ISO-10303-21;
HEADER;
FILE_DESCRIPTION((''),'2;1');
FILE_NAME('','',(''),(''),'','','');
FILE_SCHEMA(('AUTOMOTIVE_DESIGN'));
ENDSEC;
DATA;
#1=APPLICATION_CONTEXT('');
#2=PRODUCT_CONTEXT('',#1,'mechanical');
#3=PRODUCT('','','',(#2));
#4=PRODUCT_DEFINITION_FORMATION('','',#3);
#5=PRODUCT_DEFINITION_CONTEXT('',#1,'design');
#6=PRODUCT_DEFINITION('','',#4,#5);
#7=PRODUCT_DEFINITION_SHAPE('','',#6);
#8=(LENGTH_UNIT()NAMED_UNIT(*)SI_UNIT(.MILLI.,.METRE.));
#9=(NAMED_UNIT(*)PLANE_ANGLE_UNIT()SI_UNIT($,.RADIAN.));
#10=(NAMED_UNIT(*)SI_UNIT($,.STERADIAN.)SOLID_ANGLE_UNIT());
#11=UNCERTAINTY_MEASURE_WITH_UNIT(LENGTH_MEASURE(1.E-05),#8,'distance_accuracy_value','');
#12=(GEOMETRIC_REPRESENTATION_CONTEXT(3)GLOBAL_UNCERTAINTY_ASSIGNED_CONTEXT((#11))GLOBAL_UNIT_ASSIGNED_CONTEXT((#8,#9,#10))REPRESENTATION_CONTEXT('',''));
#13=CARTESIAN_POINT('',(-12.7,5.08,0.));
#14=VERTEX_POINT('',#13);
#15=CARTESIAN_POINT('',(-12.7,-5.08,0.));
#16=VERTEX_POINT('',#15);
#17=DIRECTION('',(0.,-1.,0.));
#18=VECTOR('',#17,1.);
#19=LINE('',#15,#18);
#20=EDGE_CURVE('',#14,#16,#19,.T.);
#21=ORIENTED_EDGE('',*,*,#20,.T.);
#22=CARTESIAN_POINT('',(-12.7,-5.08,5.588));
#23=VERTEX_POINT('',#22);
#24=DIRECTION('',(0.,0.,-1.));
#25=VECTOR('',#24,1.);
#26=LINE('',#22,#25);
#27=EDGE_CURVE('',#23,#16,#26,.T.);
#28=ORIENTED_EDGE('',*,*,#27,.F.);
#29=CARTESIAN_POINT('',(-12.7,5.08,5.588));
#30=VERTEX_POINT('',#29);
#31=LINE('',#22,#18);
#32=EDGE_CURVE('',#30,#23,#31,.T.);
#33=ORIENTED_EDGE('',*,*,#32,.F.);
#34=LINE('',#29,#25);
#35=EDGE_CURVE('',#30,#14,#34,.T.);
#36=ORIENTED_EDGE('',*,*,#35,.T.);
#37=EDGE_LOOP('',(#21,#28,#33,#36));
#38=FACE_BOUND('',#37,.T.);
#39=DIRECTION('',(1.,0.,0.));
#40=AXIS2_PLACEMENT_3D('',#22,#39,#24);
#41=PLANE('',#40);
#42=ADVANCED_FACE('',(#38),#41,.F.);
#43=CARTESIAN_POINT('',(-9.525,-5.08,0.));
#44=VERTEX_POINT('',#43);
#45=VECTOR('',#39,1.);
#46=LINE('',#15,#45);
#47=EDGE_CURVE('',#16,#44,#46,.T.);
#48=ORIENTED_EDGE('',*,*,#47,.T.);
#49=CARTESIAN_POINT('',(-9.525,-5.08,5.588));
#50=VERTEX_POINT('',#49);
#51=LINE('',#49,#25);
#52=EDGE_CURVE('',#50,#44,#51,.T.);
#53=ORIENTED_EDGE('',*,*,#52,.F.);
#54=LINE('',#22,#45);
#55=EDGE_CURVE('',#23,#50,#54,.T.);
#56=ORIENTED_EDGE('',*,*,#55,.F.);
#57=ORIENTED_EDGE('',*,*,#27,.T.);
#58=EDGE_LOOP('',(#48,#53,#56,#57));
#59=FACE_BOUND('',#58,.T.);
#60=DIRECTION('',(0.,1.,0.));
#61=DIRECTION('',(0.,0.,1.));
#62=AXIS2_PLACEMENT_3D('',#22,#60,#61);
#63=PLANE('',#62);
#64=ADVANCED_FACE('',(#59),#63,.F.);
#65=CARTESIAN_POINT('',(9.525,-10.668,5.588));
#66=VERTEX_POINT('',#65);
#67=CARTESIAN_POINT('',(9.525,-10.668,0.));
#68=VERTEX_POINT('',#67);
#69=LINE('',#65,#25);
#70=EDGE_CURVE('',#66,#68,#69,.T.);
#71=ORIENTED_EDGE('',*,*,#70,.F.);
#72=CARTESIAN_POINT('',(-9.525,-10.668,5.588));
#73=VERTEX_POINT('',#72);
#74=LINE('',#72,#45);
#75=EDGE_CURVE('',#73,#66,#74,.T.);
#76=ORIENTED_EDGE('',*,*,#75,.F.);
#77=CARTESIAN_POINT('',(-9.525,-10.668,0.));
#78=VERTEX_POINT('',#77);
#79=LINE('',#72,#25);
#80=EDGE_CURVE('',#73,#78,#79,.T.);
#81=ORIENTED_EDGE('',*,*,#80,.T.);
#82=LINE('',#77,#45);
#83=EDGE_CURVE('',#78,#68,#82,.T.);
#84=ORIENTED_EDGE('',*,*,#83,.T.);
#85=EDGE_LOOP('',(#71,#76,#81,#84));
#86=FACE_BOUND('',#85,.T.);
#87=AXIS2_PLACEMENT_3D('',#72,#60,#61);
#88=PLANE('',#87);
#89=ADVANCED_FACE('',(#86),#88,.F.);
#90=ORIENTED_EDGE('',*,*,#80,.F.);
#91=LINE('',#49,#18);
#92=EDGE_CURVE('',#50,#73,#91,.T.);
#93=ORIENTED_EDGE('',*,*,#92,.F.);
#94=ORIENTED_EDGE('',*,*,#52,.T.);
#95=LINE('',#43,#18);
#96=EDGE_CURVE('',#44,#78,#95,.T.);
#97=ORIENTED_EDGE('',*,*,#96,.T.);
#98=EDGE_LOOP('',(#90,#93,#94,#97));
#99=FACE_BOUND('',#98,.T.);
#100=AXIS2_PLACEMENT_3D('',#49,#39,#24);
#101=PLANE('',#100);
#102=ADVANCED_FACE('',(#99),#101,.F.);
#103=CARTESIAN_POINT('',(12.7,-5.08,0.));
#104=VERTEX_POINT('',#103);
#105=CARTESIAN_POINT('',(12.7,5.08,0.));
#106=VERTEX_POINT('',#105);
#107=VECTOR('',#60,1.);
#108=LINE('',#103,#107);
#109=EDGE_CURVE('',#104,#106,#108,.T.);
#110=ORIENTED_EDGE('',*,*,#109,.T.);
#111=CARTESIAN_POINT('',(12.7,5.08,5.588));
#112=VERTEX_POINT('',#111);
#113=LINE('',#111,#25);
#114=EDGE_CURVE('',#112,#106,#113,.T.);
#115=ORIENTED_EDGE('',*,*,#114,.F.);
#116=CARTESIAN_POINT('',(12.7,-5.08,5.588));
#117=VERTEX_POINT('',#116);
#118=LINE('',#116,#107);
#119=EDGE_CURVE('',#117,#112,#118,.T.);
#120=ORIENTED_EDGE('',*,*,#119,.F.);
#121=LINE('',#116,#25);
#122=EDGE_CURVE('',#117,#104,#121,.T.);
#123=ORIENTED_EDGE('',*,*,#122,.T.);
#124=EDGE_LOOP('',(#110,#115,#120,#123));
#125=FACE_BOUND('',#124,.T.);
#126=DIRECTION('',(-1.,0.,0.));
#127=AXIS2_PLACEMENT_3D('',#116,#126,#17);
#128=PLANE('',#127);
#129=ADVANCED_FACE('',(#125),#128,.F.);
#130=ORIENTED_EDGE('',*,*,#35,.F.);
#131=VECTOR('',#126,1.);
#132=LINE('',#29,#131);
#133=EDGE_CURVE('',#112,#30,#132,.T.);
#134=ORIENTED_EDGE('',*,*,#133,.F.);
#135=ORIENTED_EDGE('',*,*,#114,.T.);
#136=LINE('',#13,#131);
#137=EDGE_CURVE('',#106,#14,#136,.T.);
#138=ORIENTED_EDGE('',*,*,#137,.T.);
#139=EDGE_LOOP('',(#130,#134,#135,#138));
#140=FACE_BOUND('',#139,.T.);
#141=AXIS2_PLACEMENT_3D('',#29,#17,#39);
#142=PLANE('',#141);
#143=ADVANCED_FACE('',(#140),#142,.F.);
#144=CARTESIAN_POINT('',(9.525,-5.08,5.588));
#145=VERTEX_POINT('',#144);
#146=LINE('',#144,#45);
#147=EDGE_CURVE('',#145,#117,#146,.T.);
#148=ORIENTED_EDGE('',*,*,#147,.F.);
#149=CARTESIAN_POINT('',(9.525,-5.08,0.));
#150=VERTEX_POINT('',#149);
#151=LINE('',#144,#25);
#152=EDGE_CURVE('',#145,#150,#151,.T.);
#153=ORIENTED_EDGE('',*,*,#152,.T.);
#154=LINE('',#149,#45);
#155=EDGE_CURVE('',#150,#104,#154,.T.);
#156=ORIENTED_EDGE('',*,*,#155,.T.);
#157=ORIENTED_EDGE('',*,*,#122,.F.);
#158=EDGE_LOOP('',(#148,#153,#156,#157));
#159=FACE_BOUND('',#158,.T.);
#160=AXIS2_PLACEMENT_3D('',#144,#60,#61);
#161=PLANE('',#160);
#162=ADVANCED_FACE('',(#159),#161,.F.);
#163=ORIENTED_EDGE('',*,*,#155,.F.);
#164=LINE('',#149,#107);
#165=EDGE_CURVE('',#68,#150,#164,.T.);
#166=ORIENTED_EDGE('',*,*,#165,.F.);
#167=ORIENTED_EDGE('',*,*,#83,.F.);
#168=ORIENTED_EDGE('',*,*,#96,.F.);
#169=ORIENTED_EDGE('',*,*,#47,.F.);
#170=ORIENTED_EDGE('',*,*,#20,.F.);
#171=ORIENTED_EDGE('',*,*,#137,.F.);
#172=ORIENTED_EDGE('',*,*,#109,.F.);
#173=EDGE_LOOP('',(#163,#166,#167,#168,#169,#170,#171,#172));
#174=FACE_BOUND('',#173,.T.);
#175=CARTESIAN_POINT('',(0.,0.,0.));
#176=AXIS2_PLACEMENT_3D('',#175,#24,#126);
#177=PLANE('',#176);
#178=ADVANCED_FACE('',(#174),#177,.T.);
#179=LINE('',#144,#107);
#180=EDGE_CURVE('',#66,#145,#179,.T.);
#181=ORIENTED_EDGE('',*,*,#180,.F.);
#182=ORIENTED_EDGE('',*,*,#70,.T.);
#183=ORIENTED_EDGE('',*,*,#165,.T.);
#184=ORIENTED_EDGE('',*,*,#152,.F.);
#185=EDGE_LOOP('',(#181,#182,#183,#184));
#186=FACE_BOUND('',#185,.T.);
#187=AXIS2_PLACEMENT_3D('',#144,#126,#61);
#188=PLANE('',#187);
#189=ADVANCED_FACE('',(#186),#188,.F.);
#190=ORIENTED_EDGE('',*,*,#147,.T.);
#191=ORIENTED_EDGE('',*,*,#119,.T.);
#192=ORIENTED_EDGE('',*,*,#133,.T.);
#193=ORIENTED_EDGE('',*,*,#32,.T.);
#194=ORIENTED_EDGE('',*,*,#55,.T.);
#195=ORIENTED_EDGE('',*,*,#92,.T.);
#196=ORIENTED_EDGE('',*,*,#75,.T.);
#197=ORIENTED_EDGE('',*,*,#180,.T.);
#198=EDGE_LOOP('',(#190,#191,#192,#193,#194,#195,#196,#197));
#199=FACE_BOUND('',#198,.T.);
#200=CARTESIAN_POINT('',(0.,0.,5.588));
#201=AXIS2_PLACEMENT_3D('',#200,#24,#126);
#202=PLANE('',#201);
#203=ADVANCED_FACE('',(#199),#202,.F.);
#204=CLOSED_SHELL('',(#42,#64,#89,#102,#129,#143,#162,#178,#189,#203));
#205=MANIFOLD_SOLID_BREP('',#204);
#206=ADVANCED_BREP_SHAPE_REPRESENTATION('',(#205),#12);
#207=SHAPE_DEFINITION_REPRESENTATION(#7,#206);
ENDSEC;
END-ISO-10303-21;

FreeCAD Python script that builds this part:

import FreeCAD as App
import Part
import Sketcher
Q = App.Units.Quantity


def add_polygon(sketch, points):
    """Adds a closed chain of lines whose ends are joined by coincident constraints."""
    first, n = sketch.GeometryCount, len(points)
    for a, b in zip(points, points[1:] + points[:1]):
        sketch.addGeometry(Part.LineSegment(App.Vector(*a, 0), App.Vector(*b, 0)), False)
    for i in range(n):
        sketch.addConstraint(Sketcher.Constraint("Coincident", first + i, 2, first + (i + 1) % n, 1))

doc = App.newDocument("Part")
body = doc.addObject("PartDesign::Body", "Body")

sketch1 = body.newObject("Sketcher::SketchObject", "Sketch")
sketch1.AttachmentSupport = (doc.getObject("XY_Plane"), [""])
sketch1.MapMode = "FlatFace"
add_polygon(sketch1, [(-12.7, -5.1), (-9.5, -5.1), (-9.5, -10.7), (9.5, -10.7), (9.5, -5.1), (12.7, -5.1), (12.7, 5.1), (-12.7, 5.1)])
sketch1.addConstraint(Sketcher.Constraint("Horizontal", 0))
sketch1.addConstraint(Sketcher.Constraint("Vertical", 1))
sketch1.addConstraint(Sketcher.Constraint("Horizontal", 2))
sketch1.addConstraint(Sketcher.Constraint("Vertical", 3))
sketch1.addConstraint(Sketcher.Constraint("Horizontal", 4))
sketch1.addConstraint(Sketcher.Constraint("Vertical", 5))
sketch1.addConstraint(Sketcher.Constraint("Horizontal", 6))
sketch1.addConstraint(Sketcher.Constraint("Vertical", 7))
sketch1.addConstraint(Sketcher.Constraint("Symmetric", 4, 2, 6, 2, -1, 1))
sketch1.addConstraint(Sketcher.Constraint("Symmetric", 0, 2, 3, 2, -2))
sketch1.addConstraint(Sketcher.Constraint("DistanceX", 6, 2, 6, 1, Q("1 in")))
sketch1.addConstraint(Sketcher.Constraint("DistanceY", 5, 1, 5, 2, Q("0.4 in")))
sketch1.addConstraint(Sketcher.Constraint("DistanceX", 2, 1, 2, 2, Q("0.75 in")))
sketch1.addConstraint(Sketcher.Constraint("DistanceY", 1, 2, 1, 1, Q("0.22 in")))
pad1 = body.newObject("PartDesign::Pad", "Pad")
pad1.Profile = sketch1
pad1.Length = Q("0.22 in")

doc.recompute()
